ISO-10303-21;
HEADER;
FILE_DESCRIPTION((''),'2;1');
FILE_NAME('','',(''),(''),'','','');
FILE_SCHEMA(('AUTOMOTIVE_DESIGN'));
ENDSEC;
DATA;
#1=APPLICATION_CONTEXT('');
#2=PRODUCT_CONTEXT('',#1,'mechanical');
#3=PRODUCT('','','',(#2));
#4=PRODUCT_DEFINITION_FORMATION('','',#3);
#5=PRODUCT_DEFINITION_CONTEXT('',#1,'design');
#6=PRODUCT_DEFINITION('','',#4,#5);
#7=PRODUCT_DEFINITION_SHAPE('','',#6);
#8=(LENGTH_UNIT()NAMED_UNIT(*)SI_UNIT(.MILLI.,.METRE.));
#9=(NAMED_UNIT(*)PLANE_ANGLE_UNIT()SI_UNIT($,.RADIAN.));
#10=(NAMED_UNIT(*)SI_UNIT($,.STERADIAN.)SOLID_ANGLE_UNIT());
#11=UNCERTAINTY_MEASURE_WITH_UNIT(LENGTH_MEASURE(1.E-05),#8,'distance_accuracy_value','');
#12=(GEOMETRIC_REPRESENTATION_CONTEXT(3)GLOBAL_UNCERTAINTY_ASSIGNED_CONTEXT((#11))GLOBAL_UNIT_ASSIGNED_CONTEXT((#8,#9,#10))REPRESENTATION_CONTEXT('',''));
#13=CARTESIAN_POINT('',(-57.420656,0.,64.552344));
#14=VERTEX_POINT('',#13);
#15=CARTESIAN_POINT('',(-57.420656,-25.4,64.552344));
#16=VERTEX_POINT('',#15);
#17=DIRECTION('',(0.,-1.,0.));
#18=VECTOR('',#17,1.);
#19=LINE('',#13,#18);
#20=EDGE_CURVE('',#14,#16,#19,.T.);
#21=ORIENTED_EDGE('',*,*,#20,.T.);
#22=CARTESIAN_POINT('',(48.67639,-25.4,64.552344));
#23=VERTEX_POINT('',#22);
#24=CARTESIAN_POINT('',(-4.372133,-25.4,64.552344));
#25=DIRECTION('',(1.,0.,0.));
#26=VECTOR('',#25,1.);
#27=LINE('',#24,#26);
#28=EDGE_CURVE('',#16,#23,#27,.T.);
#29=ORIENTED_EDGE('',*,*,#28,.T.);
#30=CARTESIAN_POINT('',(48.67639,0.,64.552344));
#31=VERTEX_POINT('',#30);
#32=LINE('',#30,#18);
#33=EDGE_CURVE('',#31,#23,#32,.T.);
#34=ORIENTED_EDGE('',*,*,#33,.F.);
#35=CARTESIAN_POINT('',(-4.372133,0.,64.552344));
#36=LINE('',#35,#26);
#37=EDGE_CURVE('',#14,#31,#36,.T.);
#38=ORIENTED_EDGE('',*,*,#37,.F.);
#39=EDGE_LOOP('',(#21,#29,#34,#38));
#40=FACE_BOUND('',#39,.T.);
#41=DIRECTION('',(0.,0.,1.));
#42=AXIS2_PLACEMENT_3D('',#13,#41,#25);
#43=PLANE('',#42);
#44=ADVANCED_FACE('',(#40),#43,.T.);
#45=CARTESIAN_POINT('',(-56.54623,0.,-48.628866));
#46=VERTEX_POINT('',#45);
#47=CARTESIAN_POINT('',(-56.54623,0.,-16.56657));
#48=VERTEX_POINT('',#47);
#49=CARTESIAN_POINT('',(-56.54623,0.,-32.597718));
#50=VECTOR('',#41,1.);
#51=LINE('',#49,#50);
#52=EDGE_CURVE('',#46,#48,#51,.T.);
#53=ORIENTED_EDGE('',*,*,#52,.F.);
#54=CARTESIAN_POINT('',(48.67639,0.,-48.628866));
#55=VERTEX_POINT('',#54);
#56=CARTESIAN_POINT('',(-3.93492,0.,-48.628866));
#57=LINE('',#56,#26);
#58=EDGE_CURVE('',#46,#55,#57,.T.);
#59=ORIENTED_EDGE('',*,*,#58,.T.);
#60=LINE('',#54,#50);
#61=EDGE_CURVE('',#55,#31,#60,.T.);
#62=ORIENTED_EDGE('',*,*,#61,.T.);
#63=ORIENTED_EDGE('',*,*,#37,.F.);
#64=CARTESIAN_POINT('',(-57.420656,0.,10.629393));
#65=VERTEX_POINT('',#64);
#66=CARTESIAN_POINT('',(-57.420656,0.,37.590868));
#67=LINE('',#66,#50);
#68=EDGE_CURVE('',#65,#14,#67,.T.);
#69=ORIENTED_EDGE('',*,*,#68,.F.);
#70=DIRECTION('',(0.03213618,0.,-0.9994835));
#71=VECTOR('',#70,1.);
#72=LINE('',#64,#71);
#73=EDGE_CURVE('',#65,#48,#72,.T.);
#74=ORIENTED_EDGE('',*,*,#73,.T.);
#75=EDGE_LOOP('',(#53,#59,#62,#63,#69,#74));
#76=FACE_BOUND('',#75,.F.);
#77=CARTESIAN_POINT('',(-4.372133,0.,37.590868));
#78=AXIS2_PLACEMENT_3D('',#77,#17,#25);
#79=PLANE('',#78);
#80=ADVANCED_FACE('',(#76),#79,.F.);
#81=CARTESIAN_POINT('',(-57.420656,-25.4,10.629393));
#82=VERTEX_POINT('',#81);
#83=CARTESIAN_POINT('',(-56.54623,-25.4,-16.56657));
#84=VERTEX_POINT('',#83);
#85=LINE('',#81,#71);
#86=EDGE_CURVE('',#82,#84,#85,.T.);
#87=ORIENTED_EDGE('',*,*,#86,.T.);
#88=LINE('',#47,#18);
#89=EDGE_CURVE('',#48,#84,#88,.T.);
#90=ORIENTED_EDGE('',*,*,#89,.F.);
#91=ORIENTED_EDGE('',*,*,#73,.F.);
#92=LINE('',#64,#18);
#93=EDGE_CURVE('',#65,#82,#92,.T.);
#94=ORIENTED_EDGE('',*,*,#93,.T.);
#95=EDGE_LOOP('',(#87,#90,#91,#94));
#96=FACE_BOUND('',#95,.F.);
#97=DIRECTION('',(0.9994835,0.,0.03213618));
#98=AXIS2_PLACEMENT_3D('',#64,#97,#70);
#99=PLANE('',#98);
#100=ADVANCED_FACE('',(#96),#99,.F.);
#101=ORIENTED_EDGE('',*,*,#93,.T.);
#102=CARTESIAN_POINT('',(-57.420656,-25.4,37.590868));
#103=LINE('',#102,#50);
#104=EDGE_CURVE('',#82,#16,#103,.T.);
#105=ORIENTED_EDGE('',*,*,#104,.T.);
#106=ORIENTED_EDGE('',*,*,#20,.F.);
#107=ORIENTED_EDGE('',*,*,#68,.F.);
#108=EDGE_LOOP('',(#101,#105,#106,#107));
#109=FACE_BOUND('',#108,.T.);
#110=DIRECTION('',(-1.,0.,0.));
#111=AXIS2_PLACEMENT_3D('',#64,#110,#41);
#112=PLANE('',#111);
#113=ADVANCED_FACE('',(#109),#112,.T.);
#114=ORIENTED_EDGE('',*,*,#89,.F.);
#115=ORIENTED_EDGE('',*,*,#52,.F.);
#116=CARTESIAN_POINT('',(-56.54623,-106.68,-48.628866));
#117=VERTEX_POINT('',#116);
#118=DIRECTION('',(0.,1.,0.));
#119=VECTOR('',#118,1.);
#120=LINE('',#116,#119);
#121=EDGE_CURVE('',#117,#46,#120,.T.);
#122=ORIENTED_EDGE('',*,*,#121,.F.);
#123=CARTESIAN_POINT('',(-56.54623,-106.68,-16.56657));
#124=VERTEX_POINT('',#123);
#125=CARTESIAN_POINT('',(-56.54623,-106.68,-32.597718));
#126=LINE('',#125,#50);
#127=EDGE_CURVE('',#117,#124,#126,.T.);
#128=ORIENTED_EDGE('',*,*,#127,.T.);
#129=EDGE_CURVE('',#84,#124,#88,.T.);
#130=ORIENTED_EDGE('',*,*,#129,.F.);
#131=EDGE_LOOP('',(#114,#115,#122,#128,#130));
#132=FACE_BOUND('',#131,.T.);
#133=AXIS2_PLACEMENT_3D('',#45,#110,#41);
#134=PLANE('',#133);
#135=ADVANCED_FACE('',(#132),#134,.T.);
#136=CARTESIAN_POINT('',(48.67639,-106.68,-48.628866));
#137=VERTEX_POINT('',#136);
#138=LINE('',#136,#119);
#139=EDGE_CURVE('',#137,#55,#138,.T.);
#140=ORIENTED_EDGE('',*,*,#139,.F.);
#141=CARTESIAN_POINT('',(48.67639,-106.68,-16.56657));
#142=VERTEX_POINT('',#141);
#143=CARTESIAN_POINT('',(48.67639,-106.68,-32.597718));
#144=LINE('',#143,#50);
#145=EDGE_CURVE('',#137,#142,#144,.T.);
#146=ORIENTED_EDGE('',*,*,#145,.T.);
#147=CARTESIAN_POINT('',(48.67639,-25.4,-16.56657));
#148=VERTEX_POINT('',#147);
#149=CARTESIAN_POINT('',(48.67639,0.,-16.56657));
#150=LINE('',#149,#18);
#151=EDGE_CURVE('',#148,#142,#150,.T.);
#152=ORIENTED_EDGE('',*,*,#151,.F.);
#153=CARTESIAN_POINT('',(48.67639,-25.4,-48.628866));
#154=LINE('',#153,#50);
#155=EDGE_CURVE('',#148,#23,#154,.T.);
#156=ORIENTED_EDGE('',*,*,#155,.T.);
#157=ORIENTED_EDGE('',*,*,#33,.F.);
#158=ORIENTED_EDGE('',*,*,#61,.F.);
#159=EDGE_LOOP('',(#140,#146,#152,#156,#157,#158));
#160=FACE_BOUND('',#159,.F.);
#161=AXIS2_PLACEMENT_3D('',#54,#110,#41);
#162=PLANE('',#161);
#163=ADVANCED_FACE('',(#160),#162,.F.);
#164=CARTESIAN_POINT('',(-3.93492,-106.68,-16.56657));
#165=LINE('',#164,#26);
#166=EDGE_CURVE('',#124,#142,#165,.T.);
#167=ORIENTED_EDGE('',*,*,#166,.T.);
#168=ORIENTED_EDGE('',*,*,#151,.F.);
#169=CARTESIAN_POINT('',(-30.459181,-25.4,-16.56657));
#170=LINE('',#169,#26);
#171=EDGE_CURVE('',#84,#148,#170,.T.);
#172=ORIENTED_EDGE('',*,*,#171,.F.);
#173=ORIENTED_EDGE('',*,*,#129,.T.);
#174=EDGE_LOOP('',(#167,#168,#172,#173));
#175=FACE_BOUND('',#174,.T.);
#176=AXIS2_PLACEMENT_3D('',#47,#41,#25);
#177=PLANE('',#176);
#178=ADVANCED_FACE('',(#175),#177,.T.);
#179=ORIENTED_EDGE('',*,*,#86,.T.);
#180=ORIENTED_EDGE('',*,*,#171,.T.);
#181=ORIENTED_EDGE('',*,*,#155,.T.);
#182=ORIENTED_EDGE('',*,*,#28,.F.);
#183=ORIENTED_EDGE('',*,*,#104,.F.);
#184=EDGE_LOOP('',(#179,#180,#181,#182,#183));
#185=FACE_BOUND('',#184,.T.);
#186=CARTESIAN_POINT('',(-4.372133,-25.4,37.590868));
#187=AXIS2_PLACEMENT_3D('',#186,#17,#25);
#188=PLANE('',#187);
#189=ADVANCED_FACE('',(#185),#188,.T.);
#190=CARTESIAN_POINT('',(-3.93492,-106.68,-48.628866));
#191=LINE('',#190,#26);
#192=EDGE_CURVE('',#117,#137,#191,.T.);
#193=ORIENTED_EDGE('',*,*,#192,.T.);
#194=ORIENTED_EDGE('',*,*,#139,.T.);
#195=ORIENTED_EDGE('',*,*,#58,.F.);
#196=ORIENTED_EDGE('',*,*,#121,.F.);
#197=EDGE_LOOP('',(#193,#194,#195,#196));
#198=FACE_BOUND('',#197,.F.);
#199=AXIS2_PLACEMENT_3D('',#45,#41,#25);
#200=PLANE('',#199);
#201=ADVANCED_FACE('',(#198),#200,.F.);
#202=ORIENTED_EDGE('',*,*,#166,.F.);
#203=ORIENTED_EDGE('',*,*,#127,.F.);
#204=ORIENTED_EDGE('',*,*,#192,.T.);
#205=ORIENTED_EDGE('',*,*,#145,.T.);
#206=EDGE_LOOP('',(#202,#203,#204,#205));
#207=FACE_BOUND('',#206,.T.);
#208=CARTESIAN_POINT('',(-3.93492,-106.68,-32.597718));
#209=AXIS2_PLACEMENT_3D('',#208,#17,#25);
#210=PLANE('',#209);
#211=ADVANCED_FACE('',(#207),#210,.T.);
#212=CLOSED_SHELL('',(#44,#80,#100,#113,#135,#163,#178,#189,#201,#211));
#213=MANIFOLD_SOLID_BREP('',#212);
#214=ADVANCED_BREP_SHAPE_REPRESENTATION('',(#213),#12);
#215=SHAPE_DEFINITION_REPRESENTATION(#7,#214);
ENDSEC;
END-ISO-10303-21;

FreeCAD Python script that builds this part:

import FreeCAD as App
import Part
import Sketcher
from FreeCAD import Vector
Q = App.Units.Quantity


def add_polygon(sketch, points):
    """Adds a closed chain of lines whose ends are joined by coincident constraints."""
    first, n = sketch.GeometryCount, len(points)
    for a, b in zip(points, points[1:] + points[:1]):
        sketch.addGeometry(Part.LineSegment(App.Vector(*a, 0), App.Vector(*b, 0)), False)
    for i in range(n):
        sketch.addConstraint(Sketcher.Constraint("Coincident", first + i, 2, first + (i + 1) % n, 1))

doc = App.newDocument("Part")
body = doc.addObject("PartDesign::Body", "Body")

sketch1 = body.newObject("Sketcher::SketchObject", "Sketch")
sketch1.AttachmentSupport = (doc.getObject("XZ_Plane"), [""])
sketch1.MapMode = "FlatFace"
add_polygon(sketch1, [(-56.54623, -16.56657), (-56.54623, -48.628866), (48.67639, -48.628866), (48.67639, -16.56657)])
sketch1.addConstraint([
    Sketcher.Constraint("Vertical", 0),
    Sketcher.Constraint("Horizontal", 1),
    Sketcher.Constraint("Vertical", 2),
    Sketcher.Constraint("Horizontal", 3),
    Sketcher.Constraint("DistanceX", 1, 1, 1, 2, Q("105.22262 mm")),
    Sketcher.Constraint("DistanceY", 0, 2, 0, 1, Q("32.062296 mm")),
    Sketcher.Constraint("DistanceX", 0, 2, -1, 1, Q("56.54623 mm")),
    Sketcher.Constraint("DistanceY", 2, 2, -1, 1, Q("16.56657 mm")),
])
pad1 = body.newObject("PartDesign::Pad", "Pad")
pad1.Profile = sketch1
pad1.Length = Q("4.2 in")

sketch2 = body.newObject("Sketcher::SketchObject", "Sketch001")
sketch2.AttachmentSupport = (doc.getObject("XZ_Plane"), [""])
sketch2.MapMode = "FlatFace"
add_polygon(sketch2, [(48.67639, 64.552344), (-57.420656, 64.552344), (-57.420656, 10.629393), (-56.54623, -16.56657), (-56.54623, -48.628866), (48.67639, -48.628866)])
sketch2.addConstraint([
    Sketcher.Constraint("Horizontal", 0),
    Sketcher.Constraint("Vertical", 1),
    Sketcher.Constraint("Vertical", 3),
    Sketcher.Constraint("Horizontal", 4),
    Sketcher.Constraint("Vertical", 5),
    Sketcher.Constraint("DistanceX", 4, 1, 4, 2, Q("105.22262 mm")),
    Sketcher.Constraint("DistanceY", 1, 2, 1, 1, Q("53.922951 mm")),
    Sketcher.Constraint("DistanceY", 5, 1, 5, 2, Q("113.18121 mm")),
    Sketcher.Constraint("DistanceX", 0, 2, 0, 1, Q("106.097046 mm")),
    Sketcher.Constraint("DistanceY", 3, 2, 3, 1, Q("32.062296 mm")),
    Sketcher.Constraint("DistanceX", 2, 2, -1, 1, Q("56.54623 mm")),
    Sketcher.Constraint("DistanceY", 2, 2, -1, 1, Q("16.56657 mm")),
])
pad2 = body.newObject("PartDesign::Pad", "Pad001")
pad2.Profile = sketch2
pad2.Length = Q("1 in")

sketch3 = body.newObject("Sketcher::SketchObject", "Sketch002")
sketch3.AttachmentSupport = (doc.getObject("XZ_Plane"), [""])
sketch3.MapMode = "FlatFace"
add_polygon(sketch3, [(48.67639, 64.552344), (-57.420656, 64.552344), (-57.420656, 10.629393), (-56.54623, -16.56657), (-56.54623, -48.628866), (48.67639, -48.628866)])
sketch3.addConstraint([
    Sketcher.Constraint("Horizontal", 0),
    Sketcher.Constraint("Vertical", 1),
    Sketcher.Constraint("Vertical", 3),
    Sketcher.Constraint("Horizontal", 4),
    Sketcher.Constraint("Vertical", 5),
    Sketcher.Constraint("DistanceX", 4, 1, 4, 2, Q("105.22262 mm")),
    Sketcher.Constraint("DistanceY", 1, 2, 1, 1, Q("53.922951 mm")),
    Sketcher.Constraint("DistanceY", 5, 1, 5, 2, Q("113.18121 mm")),
    Sketcher.Constraint("DistanceX", 0, 2, 0, 1, Q("106.097046 mm")),
    Sketcher.Constraint("DistanceY", 3, 2, 3, 1, Q("32.062296 mm")),
    Sketcher.Constraint("DistanceX", 2, 2, -1, 1, Q("56.54623 mm")),
    Sketcher.Constraint("DistanceY", 2, 2, -1, 1, Q("16.56657 mm")),
])
pad3 = body.newObject("PartDesign::Pad", "Pad002")
pad3.Profile = sketch3
pad3.Length = Q("1 in")

doc.recompute()
